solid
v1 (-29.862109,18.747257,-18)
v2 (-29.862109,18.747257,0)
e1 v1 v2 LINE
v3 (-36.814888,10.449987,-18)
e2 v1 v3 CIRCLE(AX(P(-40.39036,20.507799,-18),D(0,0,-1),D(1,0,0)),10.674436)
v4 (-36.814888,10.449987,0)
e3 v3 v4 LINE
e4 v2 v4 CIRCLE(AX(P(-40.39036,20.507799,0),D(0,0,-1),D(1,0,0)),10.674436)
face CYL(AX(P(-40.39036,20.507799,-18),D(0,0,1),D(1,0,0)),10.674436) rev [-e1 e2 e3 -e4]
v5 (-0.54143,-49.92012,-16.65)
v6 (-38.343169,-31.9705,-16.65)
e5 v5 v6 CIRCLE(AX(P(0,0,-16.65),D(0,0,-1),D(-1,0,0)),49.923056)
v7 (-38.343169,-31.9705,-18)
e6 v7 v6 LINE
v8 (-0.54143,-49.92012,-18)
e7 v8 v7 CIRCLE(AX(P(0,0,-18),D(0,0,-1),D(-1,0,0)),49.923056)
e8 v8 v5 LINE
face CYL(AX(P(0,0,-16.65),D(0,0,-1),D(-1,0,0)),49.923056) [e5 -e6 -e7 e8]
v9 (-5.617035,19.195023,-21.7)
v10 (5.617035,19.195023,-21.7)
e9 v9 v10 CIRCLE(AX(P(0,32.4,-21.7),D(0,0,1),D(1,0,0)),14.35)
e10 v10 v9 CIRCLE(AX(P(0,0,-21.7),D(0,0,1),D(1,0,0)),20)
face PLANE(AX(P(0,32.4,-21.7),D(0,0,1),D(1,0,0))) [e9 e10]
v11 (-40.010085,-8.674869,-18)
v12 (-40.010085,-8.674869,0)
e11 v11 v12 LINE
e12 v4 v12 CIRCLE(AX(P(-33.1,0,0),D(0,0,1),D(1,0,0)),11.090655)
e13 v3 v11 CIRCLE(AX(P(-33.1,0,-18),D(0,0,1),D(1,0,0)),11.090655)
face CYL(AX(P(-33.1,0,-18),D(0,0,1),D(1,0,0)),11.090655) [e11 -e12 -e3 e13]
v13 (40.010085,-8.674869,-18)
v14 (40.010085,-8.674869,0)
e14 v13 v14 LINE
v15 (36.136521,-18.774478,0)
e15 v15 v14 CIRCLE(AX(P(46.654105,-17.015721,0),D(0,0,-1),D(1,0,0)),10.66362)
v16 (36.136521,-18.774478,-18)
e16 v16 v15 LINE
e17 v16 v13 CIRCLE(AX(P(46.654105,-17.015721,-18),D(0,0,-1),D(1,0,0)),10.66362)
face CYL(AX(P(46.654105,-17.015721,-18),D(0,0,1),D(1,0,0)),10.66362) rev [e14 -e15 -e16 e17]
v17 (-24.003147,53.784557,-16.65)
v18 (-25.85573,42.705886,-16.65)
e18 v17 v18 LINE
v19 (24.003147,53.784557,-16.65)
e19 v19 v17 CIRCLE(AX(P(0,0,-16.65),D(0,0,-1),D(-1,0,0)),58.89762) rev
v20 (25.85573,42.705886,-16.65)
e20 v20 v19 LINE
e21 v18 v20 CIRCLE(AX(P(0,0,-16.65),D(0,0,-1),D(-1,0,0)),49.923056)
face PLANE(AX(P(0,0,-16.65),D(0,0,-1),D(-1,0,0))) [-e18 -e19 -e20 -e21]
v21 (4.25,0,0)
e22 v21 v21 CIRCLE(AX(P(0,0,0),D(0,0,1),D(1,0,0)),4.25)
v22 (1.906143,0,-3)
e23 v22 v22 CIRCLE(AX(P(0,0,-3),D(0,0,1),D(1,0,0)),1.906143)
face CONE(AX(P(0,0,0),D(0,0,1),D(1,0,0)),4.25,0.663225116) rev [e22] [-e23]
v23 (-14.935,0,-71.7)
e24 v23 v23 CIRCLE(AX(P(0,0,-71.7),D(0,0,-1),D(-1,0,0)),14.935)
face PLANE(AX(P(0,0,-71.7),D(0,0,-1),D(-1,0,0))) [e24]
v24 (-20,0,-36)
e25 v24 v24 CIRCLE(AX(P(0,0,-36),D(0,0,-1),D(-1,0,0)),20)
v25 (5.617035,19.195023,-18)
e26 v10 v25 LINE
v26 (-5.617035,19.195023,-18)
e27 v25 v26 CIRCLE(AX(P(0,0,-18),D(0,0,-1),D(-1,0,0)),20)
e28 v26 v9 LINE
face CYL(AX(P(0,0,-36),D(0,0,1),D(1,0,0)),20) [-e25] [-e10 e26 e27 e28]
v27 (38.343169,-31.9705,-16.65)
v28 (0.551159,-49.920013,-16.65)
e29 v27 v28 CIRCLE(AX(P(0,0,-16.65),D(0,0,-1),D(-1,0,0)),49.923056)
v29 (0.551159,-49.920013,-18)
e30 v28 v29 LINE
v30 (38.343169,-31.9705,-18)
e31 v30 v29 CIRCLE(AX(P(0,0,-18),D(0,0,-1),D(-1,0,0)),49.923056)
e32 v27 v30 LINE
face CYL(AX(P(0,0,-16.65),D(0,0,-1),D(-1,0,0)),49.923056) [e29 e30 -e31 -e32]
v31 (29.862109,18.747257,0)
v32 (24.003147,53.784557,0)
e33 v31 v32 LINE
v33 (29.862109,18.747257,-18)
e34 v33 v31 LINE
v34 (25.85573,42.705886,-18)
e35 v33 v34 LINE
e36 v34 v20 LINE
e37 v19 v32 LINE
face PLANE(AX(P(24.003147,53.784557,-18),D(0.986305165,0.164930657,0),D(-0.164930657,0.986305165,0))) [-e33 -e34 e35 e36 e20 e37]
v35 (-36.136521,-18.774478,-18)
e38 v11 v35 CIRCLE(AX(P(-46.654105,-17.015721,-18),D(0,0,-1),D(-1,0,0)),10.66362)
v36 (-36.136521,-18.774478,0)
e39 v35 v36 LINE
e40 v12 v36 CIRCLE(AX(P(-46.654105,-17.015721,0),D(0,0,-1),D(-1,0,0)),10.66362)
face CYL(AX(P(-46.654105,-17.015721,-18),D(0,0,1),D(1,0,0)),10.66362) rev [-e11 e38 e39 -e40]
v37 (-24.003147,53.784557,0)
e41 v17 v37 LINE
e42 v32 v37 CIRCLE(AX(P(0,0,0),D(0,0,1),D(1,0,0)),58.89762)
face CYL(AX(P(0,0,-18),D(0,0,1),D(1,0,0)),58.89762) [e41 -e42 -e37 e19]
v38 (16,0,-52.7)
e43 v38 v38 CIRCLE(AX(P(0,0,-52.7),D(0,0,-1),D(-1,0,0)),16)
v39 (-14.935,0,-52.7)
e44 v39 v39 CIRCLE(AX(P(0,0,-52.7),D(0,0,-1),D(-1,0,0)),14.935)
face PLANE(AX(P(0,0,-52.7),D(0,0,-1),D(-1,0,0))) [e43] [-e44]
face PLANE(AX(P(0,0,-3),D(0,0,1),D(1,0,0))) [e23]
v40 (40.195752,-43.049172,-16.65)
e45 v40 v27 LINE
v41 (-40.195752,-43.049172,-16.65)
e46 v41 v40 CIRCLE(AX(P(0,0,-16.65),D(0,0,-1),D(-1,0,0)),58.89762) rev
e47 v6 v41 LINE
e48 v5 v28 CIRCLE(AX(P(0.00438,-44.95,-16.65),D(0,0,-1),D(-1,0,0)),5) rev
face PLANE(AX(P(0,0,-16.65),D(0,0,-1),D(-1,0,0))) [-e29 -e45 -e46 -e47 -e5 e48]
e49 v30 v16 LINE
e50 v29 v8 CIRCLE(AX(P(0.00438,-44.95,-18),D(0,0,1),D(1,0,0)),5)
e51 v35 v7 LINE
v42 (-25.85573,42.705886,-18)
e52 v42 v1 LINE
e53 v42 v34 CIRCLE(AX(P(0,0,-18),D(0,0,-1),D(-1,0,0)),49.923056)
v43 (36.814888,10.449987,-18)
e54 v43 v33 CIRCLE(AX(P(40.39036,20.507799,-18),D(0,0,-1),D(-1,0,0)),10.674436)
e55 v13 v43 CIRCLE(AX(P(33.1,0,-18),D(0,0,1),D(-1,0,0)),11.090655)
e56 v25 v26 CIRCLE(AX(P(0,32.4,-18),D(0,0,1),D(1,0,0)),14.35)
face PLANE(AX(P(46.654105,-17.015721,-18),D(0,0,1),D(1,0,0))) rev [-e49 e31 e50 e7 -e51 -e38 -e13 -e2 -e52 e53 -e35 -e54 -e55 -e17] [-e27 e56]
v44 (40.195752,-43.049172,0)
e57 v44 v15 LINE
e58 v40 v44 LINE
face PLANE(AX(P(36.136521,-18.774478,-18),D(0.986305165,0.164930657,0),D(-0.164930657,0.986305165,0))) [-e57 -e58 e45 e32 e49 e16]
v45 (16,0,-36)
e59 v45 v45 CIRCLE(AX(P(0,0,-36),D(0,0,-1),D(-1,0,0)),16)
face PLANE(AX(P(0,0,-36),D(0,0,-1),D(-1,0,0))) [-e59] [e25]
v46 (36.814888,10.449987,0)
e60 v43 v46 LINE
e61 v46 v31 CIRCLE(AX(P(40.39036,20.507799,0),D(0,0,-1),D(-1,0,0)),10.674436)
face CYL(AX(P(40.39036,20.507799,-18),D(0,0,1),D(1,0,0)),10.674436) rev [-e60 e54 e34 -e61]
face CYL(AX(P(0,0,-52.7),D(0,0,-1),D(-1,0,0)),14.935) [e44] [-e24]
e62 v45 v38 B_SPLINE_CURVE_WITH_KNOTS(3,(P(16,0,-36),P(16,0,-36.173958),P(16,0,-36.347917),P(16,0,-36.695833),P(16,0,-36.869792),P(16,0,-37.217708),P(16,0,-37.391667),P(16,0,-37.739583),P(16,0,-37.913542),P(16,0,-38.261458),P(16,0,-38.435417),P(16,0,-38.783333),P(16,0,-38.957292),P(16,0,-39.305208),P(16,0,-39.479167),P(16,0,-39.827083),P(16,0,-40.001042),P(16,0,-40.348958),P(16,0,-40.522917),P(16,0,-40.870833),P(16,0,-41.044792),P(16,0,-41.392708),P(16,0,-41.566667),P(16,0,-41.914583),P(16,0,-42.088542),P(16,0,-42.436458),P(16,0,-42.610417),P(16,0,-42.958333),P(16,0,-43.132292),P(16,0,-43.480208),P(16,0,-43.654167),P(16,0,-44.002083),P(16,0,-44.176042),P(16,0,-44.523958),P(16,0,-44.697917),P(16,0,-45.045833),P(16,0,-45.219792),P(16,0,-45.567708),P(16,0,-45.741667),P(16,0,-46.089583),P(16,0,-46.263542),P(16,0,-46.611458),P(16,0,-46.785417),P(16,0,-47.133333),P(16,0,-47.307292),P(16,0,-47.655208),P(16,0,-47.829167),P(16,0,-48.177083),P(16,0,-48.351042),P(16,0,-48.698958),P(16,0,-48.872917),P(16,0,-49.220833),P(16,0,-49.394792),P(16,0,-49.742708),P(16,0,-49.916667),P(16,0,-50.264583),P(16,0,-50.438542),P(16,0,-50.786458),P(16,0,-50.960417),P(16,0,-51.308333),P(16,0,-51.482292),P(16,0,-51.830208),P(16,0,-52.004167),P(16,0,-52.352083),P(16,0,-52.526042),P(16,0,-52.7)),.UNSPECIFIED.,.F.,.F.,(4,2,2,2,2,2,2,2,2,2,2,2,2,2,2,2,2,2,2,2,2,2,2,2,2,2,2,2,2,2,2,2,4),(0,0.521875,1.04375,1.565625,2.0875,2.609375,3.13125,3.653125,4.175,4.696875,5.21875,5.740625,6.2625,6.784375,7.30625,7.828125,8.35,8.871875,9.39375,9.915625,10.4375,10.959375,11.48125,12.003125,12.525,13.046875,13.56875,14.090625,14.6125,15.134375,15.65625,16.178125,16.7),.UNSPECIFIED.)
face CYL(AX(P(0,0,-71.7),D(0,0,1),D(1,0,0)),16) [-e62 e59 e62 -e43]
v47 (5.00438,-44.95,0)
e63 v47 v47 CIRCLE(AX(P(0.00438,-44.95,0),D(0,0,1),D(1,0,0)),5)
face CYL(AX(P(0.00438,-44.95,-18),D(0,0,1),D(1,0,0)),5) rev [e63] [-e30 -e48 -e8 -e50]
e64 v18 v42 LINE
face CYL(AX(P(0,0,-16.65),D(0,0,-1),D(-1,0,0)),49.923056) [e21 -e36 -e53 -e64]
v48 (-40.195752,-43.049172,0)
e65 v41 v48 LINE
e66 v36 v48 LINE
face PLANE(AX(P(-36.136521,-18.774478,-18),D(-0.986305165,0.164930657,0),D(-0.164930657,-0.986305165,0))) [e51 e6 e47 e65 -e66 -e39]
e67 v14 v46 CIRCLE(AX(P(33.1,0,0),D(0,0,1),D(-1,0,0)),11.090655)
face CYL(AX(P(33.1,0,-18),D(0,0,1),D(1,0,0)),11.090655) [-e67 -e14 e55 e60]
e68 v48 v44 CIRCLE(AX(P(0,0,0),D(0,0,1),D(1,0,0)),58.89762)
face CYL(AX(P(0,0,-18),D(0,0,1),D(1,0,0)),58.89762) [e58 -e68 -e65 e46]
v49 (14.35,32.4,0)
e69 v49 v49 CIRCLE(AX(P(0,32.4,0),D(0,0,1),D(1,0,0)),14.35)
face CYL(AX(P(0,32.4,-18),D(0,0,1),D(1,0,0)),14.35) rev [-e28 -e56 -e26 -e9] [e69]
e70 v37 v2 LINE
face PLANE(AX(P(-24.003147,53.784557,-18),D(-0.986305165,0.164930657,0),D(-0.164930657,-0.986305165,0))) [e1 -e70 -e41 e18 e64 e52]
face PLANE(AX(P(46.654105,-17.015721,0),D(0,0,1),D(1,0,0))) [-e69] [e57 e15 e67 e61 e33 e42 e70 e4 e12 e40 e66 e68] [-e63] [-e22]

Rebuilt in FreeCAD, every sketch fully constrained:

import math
import FreeCAD as App
import Part
import Sketcher

V = App.Vector
Q = App.Units.Quantity


def faces_at(feature, points):
    """Names of the faces that lie closest to the given points."""
    faces = feature.Shape.Faces
    near = lambda p: min(range(len(faces)), key=lambda i: faces[i].distToShape(Part.Vertex(*p))[0])
    return sorted({f"Face{near(p) + 1}" for p in points})

doc = App.newDocument("Part")
body = doc.addObject("PartDesign::Body", "Body")

# Sketch on XY plane
sketch1 = body.newObject("Sketcher::SketchObject", "Sketch")
sketch1.AttachmentSupport = (doc.getObject("XY_Plane"), [""])
sketch1.MapMode = "FlatFace"
sketch1.addGeometry(Part.LineSegment(V(40, -43, 0), V(36, -19, 0)), False)
sketch1.addGeometry(Part.ArcOfCircle(Part.Circle(V(47, -17, 0), V(0, 0, 1), 11), math.radians(129), math.radians(189)), False)
sketch1.addGeometry(Part.ArcOfCircle(Part.Circle(V(33, 0, 0), V(0, 0, 1), 11), math.radians(-51), math.radians(70)), False)
sketch1.addGeometry(Part.ArcOfCircle(Part.Circle(V(40, 21, 0), V(0, 0, 1), 11), math.radians(-171), math.radians(-110)), False)
sketch1.addGeometry(Part.LineSegment(V(30, 19, 0), V(24, 54, 0)), False)
sketch1.addGeometry(Part.ArcOfCircle(Part.Circle(V(0, 0, 0), V(0, 0, 1), 59), math.radians(66), math.radians(114)), False)
sketch1.addGeometry(Part.LineSegment(V(-24, 54, 0), V(-30, 19, 0)), False)
sketch1.addGeometry(Part.ArcOfCircle(Part.Circle(V(-40, 21, 0), V(0, 0, 1), 11), math.radians(-70), math.radians(-9)), False)
sketch1.addGeometry(Part.ArcOfCircle(Part.Circle(V(-33, 0, 0), V(0, 0, 1), 11), math.radians(110), math.radians(231)), False)
sketch1.addGeometry(Part.ArcOfCircle(Part.Circle(V(-47, -17, 0), V(0, 0, 1), 11), math.radians(-9), math.radians(51)), False)
sketch1.addGeometry(Part.LineSegment(V(-36, -19, 0), V(-40, -43, 0)), False)
sketch1.addGeometry(Part.ArcOfCircle(Part.Circle(V(0, 0, 0), V(0, 0, 1), 59), math.radians(-133), math.radians(-47)), False)
sketch1.addGeometry(Part.Circle(V(0, -45, 0), V(0, 0, 1), 5), False)
sketch1.addGeometry(Part.Circle(V(0, 32, 0), V(0, 0, 1), 14), False)
sketch1.addConstraint(Sketcher.Constraint("Tangent", 0, 2, 1, 2))
sketch1.addConstraint(Sketcher.Constraint("Tangent", 1, 1, 2, 1))
sketch1.addConstraint(Sketcher.Constraint("Tangent", 2, 2, 3, 2))
sketch1.addConstraint(Sketcher.Constraint("Tangent", 3, 1, 4, 1))
sketch1.addConstraint(Sketcher.Constraint("Coincident", 4, 2, 5, 1))
sketch1.addConstraint(Sketcher.Constraint("Coincident", 5, 2, 6, 1))
sketch1.addConstraint(Sketcher.Constraint("Tangent", 6, 2, 7, 2))
sketch1.addConstraint(Sketcher.Constraint("Tangent", 7, 1, 8, 1))
sketch1.addConstraint(Sketcher.Constraint("Tangent", 8, 2, 9, 2))
sketch1.addConstraint(Sketcher.Constraint("Tangent", 9, 1, 10, 1))
sketch1.addConstraint(Sketcher.Constraint("Coincident", 10, 2, 11, 1))
sketch1.addConstraint(Sketcher.Constraint("Coincident", 11, 2, 0, 1))
sketch1.addConstraint(Sketcher.Constraint("Coincident", 5, 3, -1, 1))
sketch1.addConstraint(Sketcher.Constraint("Coincident", 11, 3, -1, 1))
sketch1.addConstraint(Sketcher.Constraint("Equal", 3, 7))
sketch1.addConstraint(Sketcher.Constraint("Equal", 2, 8))
sketch1.addConstraint(Sketcher.Constraint("Equal", 1, 9))
sketch1.addConstraint(Sketcher.Constraint("Equal", 5, 11))
sketch1.addConstraint(Sketcher.Constraint("Symmetric", 2, 3, 8, 3, -1, 1))
sketch1.addConstraint(Sketcher.Constraint("Symmetric", 3, 3, 7, 3, -2))
sketch1.addConstraint(Sketcher.Constraint("Symmetric", 0, 2, 9, 1, -2))
sketch1.addConstraint(Sketcher.Constraint("PointOnObject", 13, 3, -2))
sketch1.addConstraint(Sketcher.Constraint("Parallel", 0, 4))
sketch1.addConstraint(Sketcher.Constraint("Parallel", 6, 10))
sketch1.addConstraint(Sketcher.Constraint("Diameter", 12, Q("10 mm")))
sketch1.addConstraint(Sketcher.Constraint("Diameter", 13, Q("28.7 mm")))
sketch1.addConstraint(Sketcher.Constraint("DistanceX", -1, 1, 2, 3, Q("33.1 mm")))
sketch1.addConstraint(Sketcher.Constraint("DistanceY", -1, 1, 13, 3, Q("32.4 mm")))
sketch1.addConstraint(Sketcher.Constraint("DistanceY", 12, 3, -1, 1, Q("44.95 mm")))
sketch1.addConstraint(Sketcher.Constraint("Radius", 1, Q("10.66362 mm")))
sketch1.addConstraint(Sketcher.Constraint("Radius", 5, Q("58.89762 mm")))
sketch1.addConstraint(Sketcher.Constraint("Radius", 2, Q("11.090655 mm")))
sketch1.addConstraint(Sketcher.Constraint("Radius", 3, Q("10.674436 mm")))
sketch1.addConstraint(Sketcher.Constraint("DistanceY", -1, 1, 3, 3, Q("20.507799 mm")))
sketch1.addConstraint(Sketcher.Constraint("DistanceY", 3, 1, 4, 2, Q("35.0373 mm")))
sketch1.addConstraint(Sketcher.Constraint("DistanceY", 1, 3, -1, 1, Q("17.015721 mm")))
sketch1.addConstraint(Sketcher.Constraint("DistanceX", -1, 1, 12, 3, Q("0.00438 mm")))
pad1 = body.newObject("PartDesign::Pad", "Pad")
pad1.Profile = sketch1
pad1.Length = 18
pad1.Reversed = True

# Sketch on XY plane
sketch2 = body.newObject("Sketcher::SketchObject", "Sketch001")
sketch2.AttachmentSupport = (doc.getObject("XY_Plane"), [""])
sketch2.MapMode = "FlatFace"
sketch2.AttachmentOffset = App.Placement(V(0, 0, -18), App.Rotation())
sketch2.addGeometry(Part.Circle(V(0, 0, 0), V(0, 0, 1), 20), False)
sketch2.addConstraint(Sketcher.Constraint("Coincident", 0, 3, -1, 1))
sketch2.addConstraint(Sketcher.Constraint("Diameter", 0, Q("40 mm")))
pad2 = body.newObject("PartDesign::Pad", "Pad001")
pad2.Profile = sketch2
pad2.Length = 18
pad2.Reversed = True

# Sketch on XY plane
sketch3 = body.newObject("Sketcher::SketchObject", "Sketch002")
sketch3.AttachmentSupport = (doc.getObject("XY_Plane"), [""])
sketch3.MapMode = "FlatFace"
sketch3.AttachmentOffset = App.Placement(V(0, 0, -36), App.Rotation())
sketch3.addGeometry(Part.Circle(V(0, 0, 0), V(0, 0, 1), 16), False)
sketch3.addConstraint(Sketcher.Constraint("Coincident", 0, 3, -1, 1))
sketch3.addConstraint(Sketcher.Constraint("Diameter", 0, Q("32 mm")))
pad3 = body.newObject("PartDesign::Pad", "Pad002")
pad3.Profile = sketch3
pad3.Length = 35.7
pad3.Reversed = True

# Sketch on XY plane
sketch4 = body.newObject("Sketcher::SketchObject", "Sketch003")
sketch4.AttachmentSupport = (doc.getObject("XY_Plane"), [""])
sketch4.MapMode = "FlatFace"
sketch4.AttachmentOffset = App.Placement(V(0, 0, -71.7), App.Rotation())
sketch4.addGeometry(Part.LineSegment(V(62, 76, 0), V(62, -76, 0)), False)
sketch4.addGeometry(Part.LineSegment(V(62, -76, 0), V(-62, -76, 0)), False)
sketch4.addGeometry(Part.LineSegment(V(-62, -76, 0), V(-62, 76, 0)), False)
sketch4.addGeometry(Part.LineSegment(V(-62, 76, 0), V(62, 76, 0)), False)
sketch4.addGeometry(Part.Circle(V(0, 0, 0), V(0, 0, 1), 15), False)
sketch4.addConstraint(Sketcher.Constraint("Coincident", 0, 2, 1, 1))
sketch4.addConstraint(Sketcher.Constraint("Coincident", 1, 2, 2, 1))
sketch4.addConstraint(Sketcher.Constraint("Coincident", 2, 2, 3, 1))
sketch4.addConstraint(Sketcher.Constraint("Coincident", 3, 2, 0, 1))
sketch4.addConstraint(Sketcher.Constraint("Vertical", 0))
sketch4.addConstraint(Sketcher.Constraint("Horizontal", 1))
sketch4.addConstraint(Sketcher.Constraint("Vertical", 2))
sketch4.addConstraint(Sketcher.Constraint("Horizontal", 3))
sketch4.addConstraint(Sketcher.Constraint("Coincident", 4, 3, -1, 1))
sketch4.addConstraint(Sketcher.Constraint("Symmetric", 0, 2, 2, 2, -1, 1))
sketch4.addConstraint(Sketcher.Constraint("Diameter", 4, Q("29.87 mm")))
sketch4.addConstraint(Sketcher.Constraint("DistanceX", 1, 2, 1, 1, Q("123.14 mm")))
sketch4.addConstraint(Sketcher.Constraint("DistanceY", 0, 2, 0, 1, Q("152.554 mm")))
pocket1 = body.newObject("PartDesign::Pocket", "Pocket")
pocket1.Profile = sketch4
pocket1.Length = 19
pocket1.Reversed = True
body2 = doc.addObject("PartDesign::Body", "Body001")

# Sketch on XY plane
sketch5 = body2.newObject("Sketcher::SketchObject", "Sketch004")
sketch5.AttachmentSupport = (doc.getObject("XY_Plane001"), [""])
sketch5.MapMode = "FlatFace"
sketch5.addGeometry(Part.Circle(V(0, 0, 0), V(0, 0, 1), 4.2), False)
sketch5.addConstraint(Sketcher.Constraint("Coincident", 0, 3, -1, 1))
sketch5.addConstraint(Sketcher.Constraint("Diameter", 0, Q("8.5 mm")))
pad4 = body2.newObject("PartDesign::Pad", "Pad003")
pad4.Profile = sketch5
pad4.Length = 3
pad4.Reversed = True
doc.recompute()

draft = body2.newObject("PartDesign::Draft", "Draft")
draft.Base = (pad4, faces_at(pad4, [(-4.25, 0, -1.5)]))
draft.NeutralPlane = (doc.getObject("XY_Plane001"), [""])
draft.Angle = 38
draft.Reversed = True
doc.recompute()

boolean = body.newObject("PartDesign::Boolean", "Boolean")
boolean.Type = "Cut"
boolean.addObjects([body2])

# Sketch on XY plane
sketch6 = body.newObject("Sketcher::SketchObject", "Sketch005")
sketch6.AttachmentSupport = (doc.getObject("XY_Plane"), [""])
sketch6.MapMode = "FlatFace"
sketch6.AttachmentOffset = App.Placement(V(0, 0, -18), App.Rotation())
sketch6.addGeometry(Part.LineSegment(V(62, 76, 0), V(62, -76, 0)), False)
sketch6.addGeometry(Part.LineSegment(V(62, -76, 0), V(-62, -76, 0)), False)
sketch6.addGeometry(Part.LineSegment(V(-62, -76, 0), V(-62, 76, 0)), False)
sketch6.addGeometry(Part.LineSegment(V(-62, 76, 0), V(62, 76, 0)), False)
sketch6.addGeometry(Part.Circle(V(0, 0, 0), V(0, 0, 1), 50), False)
sketch6.addConstraint(Sketcher.Constraint("Coincident", 0, 2, 1, 1))
sketch6.addConstraint(Sketcher.Constraint("Coincident", 1, 2, 2, 1))
sketch6.addConstraint(Sketcher.Constraint("Coincident", 2, 2, 3, 1))
sketch6.addConstraint(Sketcher.Constraint("Coincident", 3, 2, 0, 1))
sketch6.addConstraint(Sketcher.Constraint("Vertical", 0))
sketch6.addConstraint(Sketcher.Constraint("Horizontal", 1))
sketch6.addConstraint(Sketcher.Constraint("Vertical", 2))
sketch6.addConstraint(Sketcher.Constraint("Horizontal", 3))
sketch6.addConstraint(Sketcher.Constraint("Coincident", 4, 3, -1, 1))
sketch6.addConstraint(Sketcher.Constraint("Symmetric", 0, 2, 2, 2, -1, 1))
sketch6.addConstraint(Sketcher.Constraint("DistanceX", 1, 2, 1, 1, Q("123.14 mm")))
sketch6.addConstraint(Sketcher.Constraint("Diameter", 4, Q("99.846111 mm")))
sketch6.addConstraint(Sketcher.Constraint("DistanceY", 0, 2, 0, 1, Q("152.554 mm")))
pocket2 = body.newObject("PartDesign::Pocket", "Pocket001")
pocket2.Profile = sketch6
pocket2.Length = 1.35
pocket2.Reversed = True

# Sketch on XY plane
sketch7 = body.newObject("Sketcher::SketchObject", "Sketch006")
sketch7.AttachmentSupport = (doc.getObject("XY_Plane"), [""])
sketch7.MapMode = "FlatFace"
sketch7.addGeometry(Part.Circle(V(0, 32, 0), V(0, 0, 1), 14), False)
sketch7.addConstraint(Sketcher.Constraint("PointOnObject", 0, 3, -2))
sketch7.addConstraint(Sketcher.Constraint("Diameter", 0, Q("28.7 mm")))
sketch7.addConstraint(Sketcher.Constraint("DistanceY", -1, 1, 0, 3, Q("32.4 mm")))
pocket3 = body.newObject("PartDesign::Pocket", "Pocket002")
pocket3.Profile = sketch7
pocket3.Length = 21.7

doc.recompute()
